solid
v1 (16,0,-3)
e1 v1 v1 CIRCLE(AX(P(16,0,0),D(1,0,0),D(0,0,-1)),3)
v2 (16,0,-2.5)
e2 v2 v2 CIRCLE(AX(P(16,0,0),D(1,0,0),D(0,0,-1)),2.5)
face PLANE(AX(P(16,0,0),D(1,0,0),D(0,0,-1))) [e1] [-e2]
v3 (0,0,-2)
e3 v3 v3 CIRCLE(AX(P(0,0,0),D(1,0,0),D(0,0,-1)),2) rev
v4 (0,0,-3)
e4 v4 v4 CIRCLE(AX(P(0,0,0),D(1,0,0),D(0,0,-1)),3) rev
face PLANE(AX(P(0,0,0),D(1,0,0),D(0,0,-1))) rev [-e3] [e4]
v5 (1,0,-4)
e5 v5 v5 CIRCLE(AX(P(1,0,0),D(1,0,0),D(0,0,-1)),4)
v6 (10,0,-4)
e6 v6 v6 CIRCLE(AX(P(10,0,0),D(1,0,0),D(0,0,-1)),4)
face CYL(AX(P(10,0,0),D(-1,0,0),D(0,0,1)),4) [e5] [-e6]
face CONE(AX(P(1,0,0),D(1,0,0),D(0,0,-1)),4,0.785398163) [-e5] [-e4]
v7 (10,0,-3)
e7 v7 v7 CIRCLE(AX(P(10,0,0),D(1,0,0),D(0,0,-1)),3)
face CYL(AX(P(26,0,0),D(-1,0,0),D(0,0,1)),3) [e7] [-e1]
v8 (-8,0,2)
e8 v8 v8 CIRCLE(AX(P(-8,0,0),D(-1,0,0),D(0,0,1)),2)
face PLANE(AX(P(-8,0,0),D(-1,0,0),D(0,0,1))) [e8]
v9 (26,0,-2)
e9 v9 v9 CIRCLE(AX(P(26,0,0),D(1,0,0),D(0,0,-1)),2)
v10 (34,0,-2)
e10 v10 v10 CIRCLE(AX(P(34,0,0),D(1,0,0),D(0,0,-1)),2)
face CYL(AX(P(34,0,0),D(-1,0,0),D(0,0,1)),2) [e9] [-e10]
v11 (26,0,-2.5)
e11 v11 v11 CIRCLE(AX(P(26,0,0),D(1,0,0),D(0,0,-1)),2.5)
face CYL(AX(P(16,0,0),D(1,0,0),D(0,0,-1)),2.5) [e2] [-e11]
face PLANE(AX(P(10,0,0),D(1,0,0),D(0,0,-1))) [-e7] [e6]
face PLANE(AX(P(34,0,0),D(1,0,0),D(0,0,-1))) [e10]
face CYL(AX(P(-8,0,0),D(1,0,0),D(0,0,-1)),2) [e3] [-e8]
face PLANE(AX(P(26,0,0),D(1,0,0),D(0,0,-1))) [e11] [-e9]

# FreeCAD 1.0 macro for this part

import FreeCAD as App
import Part
import Sketcher
Q = App.Units.Quantity


def edges_at(feature, points):
    """Names of the edges that pass closest to the given points."""
    edges = feature.Shape.Edges
    near = lambda p: min(range(len(edges)), key=lambda i: edges[i].distToShape(Part.Vertex(*p))[0])
    return sorted({f"Edge{near(p) + 1}" for p in points})

doc = App.newDocument("Part")
body = doc.addObject("PartDesign::Body", "Body")

# Sketch on YZ plane
sketch1 = body.newObject("Sketcher::SketchObject", "Sketch")
sketch1.AttachmentSupport = (doc.getObject("YZ_Plane"), [""])
sketch1.MapMode = "FlatFace"
sketch1.addGeometry(Part.Circle(App.Vector(0, 0, 0), App.Vector(0, 0, 1), 4), False)
sketch1.addConstraint(Sketcher.Constraint("Coincident", 0, 3, -1, 1))
sketch1.addConstraint(Sketcher.Constraint("Diameter", 0, Q("8 mm")))
pad1 = body.newObject("PartDesign::Pad", "Pad")
pad1.Profile = sketch1
pad1.Length = 10

# Sketch on YZ plane
sketch2 = body.newObject("Sketcher::SketchObject", "Sketch001")
sketch2.AttachmentSupport = (doc.getObject("YZ_Plane"), [""])
sketch2.MapMode = "FlatFace"
sketch2.addGeometry(Part.Circle(App.Vector(0, 0, 0), App.Vector(0, 0, 1), 2), False)
sketch2.addConstraint(Sketcher.Constraint("Coincident", 0, 3, -1, 1))
sketch2.addConstraint(Sketcher.Constraint("Diameter", 0, Q("4 mm")))
pad2 = body.newObject("PartDesign::Pad", "Pad001")
pad2.Profile = sketch2
pad2.Length = 8
pad2.Reversed = True

# Sketch on YZ plane
sketch3 = body.newObject("Sketcher::SketchObject", "Sketch002")
sketch3.AttachmentSupport = (doc.getObject("YZ_Plane"), [""])
sketch3.MapMode = "FlatFace"
sketch3.AttachmentOffset = App.Placement(App.Vector(0, 0, 10), App.Rotation())
sketch3.addGeometry(Part.Circle(App.Vector(0, 0, 0), App.Vector(0, 0, 1), 3), False)
sketch3.addConstraint(Sketcher.Constraint("Coincident", 0, 3, -1, 1))
sketch3.addConstraint(Sketcher.Constraint("Diameter", 0, Q("6 mm")))
pad3 = body.newObject("PartDesign::Pad", "Pad002")
pad3.Profile = sketch3
pad3.Length = 16

# Sketch on YZ plane
sketch4 = body.newObject("Sketcher::SketchObject", "Sketch003")
sketch4.AttachmentSupport = (doc.getObject("YZ_Plane"), [""])
sketch4.MapMode = "FlatFace"
sketch4.AttachmentOffset = App.Placement(App.Vector(0, 0, 34), App.Rotation())
sketch4.addGeometry(Part.Circle(App.Vector(0, 0, 0), App.Vector(0, 0, 1), 2), False)
sketch4.addConstraint(Sketcher.Constraint("Coincident", 0, 3, -1, 1))
sketch4.addConstraint(Sketcher.Constraint("Diameter", 0, Q("4 mm")))
pad4 = body.newObject("PartDesign::Pad", "Pad003")
pad4.Profile = sketch4
pad4.Length = 8
pad4.Reversed = True
doc.recompute()

chamfer = body.newObject("PartDesign::Chamfer", "Chamfer")
chamfer.Base = (pad4, edges_at(pad4, [(0, 0, 4)]))
chamfer.Size = 1

# Sketch on YZ plane
sketch5 = body.newObject("Sketcher::SketchObject", "Sketch004")
sketch5.AttachmentSupport = (doc.getObject("YZ_Plane"), [""])
sketch5.MapMode = "FlatFace"
sketch5.AttachmentOffset = App.Placement(App.Vector(0, 0, 16), App.Rotation())
sketch5.addGeometry(Part.Circle(App.Vector(0, 0, 0), App.Vector(0, 0, 1), 3), False)
sketch5.addGeometry(Part.Circle(App.Vector(0, 0, 0), App.Vector(0, 0, 1), 2.5), False)
sketch5.addConstraint(Sketcher.Constraint("Coincident", 0, 3, -1, 1))
sketch5.addConstraint(Sketcher.Constraint("Coincident", 1, 3, -1, 1))
sketch5.addConstraint(Sketcher.Constraint("Diameter", 0, Q("6 mm")))
sketch5.addConstraint(Sketcher.Constraint("Diameter", 1, Q("5 mm")))
pocket1 = body.newObject("PartDesign::Pocket", "Pocket")
pocket1.Profile = sketch5
pocket1.Length = 10
pocket1.Reversed = True

doc.recompute()
